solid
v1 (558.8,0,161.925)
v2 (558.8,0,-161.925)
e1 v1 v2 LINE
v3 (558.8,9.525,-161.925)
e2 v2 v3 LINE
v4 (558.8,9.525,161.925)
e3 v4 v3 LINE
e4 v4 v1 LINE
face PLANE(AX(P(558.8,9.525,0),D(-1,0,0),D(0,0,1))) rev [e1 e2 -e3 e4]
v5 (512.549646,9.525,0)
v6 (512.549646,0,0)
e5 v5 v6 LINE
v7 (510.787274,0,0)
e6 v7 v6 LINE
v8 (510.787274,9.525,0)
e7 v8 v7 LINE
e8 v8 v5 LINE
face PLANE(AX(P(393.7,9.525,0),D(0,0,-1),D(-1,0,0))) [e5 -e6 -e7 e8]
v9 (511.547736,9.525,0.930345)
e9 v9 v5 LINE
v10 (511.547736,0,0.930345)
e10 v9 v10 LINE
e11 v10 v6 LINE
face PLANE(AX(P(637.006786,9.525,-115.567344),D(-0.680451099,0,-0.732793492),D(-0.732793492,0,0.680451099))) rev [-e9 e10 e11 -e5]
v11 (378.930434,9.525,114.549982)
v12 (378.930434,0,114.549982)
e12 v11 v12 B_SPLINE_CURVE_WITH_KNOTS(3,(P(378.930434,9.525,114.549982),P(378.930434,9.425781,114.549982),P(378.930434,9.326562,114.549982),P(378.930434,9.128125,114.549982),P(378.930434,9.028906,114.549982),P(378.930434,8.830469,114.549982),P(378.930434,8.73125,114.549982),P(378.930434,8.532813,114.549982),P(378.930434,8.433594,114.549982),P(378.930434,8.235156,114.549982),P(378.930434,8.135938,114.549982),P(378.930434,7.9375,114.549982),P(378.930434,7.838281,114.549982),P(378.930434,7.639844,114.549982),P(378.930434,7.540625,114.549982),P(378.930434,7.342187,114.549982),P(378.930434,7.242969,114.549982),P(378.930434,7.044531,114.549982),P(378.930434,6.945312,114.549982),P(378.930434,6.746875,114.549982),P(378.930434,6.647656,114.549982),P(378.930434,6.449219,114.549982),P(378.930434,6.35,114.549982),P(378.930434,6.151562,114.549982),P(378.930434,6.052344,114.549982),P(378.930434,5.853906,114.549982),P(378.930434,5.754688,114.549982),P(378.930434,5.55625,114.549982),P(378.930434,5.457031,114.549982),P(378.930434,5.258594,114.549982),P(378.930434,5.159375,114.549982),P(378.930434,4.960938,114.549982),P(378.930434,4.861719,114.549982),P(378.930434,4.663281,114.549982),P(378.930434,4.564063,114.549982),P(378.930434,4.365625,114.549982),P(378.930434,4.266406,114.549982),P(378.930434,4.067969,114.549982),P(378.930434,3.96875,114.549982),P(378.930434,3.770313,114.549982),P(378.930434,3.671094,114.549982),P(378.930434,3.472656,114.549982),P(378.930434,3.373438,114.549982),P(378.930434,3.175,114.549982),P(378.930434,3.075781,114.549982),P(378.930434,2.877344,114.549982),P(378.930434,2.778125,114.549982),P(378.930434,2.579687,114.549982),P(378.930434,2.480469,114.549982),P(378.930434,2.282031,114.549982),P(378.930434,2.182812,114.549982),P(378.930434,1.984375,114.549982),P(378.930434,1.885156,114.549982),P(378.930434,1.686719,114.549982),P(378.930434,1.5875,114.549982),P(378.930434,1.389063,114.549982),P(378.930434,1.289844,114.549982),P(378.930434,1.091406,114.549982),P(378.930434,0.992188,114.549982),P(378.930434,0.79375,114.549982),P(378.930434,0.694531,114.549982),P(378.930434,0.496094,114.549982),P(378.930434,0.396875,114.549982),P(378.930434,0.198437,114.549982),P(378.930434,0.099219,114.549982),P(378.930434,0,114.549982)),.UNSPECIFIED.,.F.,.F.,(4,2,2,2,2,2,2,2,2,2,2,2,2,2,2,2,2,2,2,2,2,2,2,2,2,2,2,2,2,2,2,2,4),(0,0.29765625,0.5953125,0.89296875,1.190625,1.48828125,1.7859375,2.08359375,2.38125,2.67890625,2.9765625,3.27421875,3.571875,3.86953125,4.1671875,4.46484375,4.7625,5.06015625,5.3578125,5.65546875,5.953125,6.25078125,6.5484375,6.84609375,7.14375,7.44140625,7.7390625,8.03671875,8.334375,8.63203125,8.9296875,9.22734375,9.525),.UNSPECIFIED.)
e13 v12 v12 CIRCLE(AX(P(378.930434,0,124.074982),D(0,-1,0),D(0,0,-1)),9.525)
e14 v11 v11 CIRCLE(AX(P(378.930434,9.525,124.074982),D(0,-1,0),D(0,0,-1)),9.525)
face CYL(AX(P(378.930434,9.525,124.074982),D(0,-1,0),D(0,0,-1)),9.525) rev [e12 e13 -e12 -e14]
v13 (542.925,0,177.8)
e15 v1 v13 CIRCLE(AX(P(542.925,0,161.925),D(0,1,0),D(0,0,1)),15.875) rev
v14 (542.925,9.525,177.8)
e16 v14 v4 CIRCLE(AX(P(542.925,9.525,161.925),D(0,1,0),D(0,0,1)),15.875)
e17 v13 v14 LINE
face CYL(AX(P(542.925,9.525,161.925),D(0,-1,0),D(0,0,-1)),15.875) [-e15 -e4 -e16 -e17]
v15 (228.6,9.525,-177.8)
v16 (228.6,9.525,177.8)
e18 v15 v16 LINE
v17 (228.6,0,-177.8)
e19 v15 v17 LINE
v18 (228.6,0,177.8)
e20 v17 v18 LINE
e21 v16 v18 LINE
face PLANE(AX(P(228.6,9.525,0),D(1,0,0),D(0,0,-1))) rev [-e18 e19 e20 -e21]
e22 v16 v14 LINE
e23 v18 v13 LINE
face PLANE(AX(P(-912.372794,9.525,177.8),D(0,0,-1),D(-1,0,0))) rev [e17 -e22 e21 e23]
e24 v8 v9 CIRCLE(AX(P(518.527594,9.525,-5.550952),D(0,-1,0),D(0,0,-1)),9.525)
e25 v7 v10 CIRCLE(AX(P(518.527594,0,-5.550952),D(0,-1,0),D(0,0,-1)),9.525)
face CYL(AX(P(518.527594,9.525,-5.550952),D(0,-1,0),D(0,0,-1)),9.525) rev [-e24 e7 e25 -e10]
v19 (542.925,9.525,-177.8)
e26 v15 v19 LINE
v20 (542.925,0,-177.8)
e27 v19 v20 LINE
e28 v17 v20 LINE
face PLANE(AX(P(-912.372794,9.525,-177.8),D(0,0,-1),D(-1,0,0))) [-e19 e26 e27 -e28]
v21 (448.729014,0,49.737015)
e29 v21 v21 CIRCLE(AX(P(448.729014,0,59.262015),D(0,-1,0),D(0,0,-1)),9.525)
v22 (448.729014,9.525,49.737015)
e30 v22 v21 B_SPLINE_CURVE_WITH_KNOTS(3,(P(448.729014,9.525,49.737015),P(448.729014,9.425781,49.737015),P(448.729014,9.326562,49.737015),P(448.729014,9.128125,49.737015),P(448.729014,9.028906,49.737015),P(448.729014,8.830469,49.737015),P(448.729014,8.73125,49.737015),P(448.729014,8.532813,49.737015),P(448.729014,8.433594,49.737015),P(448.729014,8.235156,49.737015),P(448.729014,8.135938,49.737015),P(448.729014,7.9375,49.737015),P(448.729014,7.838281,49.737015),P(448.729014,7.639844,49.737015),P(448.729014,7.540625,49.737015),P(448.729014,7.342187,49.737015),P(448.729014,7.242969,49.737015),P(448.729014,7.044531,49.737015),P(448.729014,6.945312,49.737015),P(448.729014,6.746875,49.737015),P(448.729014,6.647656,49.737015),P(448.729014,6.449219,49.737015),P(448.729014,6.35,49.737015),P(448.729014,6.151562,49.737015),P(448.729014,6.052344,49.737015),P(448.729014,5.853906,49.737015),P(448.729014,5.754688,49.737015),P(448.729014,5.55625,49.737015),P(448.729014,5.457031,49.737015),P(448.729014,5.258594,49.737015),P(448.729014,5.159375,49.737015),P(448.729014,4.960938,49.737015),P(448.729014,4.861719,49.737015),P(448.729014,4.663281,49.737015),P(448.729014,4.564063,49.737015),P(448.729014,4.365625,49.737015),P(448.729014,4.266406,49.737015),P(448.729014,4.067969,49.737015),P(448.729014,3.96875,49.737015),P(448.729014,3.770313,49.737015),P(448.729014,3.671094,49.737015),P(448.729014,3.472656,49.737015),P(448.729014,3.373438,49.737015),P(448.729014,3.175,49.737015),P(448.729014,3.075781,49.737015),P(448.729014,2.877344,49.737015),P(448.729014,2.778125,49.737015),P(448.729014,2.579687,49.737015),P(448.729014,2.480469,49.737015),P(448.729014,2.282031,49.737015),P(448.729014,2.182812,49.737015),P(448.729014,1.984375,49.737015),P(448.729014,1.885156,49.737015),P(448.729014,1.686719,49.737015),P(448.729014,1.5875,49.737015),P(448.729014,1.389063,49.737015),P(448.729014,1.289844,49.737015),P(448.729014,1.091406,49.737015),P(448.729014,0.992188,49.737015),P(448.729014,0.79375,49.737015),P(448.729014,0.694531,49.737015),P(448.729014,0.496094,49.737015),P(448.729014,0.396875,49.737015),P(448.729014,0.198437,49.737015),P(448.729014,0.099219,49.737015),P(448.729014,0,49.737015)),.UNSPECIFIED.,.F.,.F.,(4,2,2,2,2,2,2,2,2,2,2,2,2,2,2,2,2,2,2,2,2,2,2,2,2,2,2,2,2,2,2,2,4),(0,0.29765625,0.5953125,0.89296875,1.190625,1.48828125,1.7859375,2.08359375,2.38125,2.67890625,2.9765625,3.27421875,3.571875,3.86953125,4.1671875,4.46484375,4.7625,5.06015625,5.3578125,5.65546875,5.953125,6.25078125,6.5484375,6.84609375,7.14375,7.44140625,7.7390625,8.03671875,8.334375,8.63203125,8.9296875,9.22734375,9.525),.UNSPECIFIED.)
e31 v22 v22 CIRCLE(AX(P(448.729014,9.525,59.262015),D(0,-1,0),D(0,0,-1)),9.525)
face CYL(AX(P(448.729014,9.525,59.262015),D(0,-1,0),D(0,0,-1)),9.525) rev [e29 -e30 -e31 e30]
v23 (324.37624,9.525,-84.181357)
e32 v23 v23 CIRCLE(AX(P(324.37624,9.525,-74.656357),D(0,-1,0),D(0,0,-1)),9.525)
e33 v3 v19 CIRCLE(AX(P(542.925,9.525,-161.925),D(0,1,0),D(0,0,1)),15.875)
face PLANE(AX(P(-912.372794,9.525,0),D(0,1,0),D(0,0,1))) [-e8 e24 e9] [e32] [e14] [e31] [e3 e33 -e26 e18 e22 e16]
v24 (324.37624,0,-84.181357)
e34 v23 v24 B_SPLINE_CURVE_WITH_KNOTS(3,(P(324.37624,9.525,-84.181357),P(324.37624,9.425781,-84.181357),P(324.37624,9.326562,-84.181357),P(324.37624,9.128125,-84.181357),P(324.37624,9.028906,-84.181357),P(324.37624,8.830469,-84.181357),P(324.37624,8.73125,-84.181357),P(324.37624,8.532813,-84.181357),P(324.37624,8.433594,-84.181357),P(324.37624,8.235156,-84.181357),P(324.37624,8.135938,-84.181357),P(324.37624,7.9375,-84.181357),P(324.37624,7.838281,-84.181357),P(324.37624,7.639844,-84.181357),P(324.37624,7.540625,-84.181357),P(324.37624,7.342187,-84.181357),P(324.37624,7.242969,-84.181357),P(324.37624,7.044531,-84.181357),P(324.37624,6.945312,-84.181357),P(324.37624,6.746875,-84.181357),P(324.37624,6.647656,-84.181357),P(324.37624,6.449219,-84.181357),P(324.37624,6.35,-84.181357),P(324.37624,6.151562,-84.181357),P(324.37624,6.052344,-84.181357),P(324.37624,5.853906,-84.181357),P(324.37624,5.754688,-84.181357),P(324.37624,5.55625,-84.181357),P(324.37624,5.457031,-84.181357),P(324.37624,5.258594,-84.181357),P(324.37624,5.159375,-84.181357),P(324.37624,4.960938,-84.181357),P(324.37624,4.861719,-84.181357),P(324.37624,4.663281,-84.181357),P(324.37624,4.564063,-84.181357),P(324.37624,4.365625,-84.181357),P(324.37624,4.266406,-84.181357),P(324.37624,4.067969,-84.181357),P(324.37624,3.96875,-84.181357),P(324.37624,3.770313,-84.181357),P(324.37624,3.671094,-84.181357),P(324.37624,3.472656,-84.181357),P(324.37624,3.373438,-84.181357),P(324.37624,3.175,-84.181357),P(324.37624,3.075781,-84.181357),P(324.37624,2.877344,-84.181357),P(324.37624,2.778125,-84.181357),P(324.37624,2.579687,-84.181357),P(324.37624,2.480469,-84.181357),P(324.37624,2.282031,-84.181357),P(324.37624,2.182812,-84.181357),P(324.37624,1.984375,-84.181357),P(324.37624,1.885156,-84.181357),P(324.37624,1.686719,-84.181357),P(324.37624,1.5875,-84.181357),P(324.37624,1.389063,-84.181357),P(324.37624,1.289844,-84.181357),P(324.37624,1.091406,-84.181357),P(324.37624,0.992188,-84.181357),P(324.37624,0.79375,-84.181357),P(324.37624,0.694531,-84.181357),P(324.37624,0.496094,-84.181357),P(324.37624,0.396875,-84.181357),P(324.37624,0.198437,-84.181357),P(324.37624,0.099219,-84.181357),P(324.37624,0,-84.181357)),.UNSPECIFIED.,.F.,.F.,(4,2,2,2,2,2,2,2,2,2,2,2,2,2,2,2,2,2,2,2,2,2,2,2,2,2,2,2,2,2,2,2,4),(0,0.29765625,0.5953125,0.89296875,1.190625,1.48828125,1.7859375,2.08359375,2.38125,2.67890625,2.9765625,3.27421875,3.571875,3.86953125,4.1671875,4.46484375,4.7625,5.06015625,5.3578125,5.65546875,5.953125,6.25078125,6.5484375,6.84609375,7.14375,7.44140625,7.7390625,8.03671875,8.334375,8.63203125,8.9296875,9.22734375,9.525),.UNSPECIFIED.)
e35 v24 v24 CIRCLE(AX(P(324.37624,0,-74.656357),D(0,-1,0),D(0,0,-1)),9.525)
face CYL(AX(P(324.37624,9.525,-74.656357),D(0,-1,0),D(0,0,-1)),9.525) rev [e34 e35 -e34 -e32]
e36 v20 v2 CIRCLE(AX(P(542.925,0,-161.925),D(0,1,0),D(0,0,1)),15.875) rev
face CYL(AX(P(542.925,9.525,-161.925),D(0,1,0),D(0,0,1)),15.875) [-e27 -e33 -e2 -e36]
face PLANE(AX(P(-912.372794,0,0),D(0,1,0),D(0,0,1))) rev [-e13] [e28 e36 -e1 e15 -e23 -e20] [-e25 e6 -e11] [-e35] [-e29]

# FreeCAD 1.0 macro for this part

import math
import FreeCAD as App
import Part
import Sketcher
Q = App.Units.Quantity


def edges_at(feature, points):
    """Names of the edges that pass closest to the given points."""
    edges = feature.Shape.Edges
    near = lambda p: min(range(len(edges)), key=lambda i: edges[i].distToShape(Part.Vertex(*p))[0])
    return sorted({f"Edge{near(p) + 1}" for p in points})

doc = App.newDocument("Part")
body = doc.addObject("PartDesign::Body", "Body")

sketch1 = doc.addObject("Sketcher::SketchObject", "Sketch")
body.addObject(sketch1)
sketch1.AttachmentSupport = (doc.XZ_Plane, [""])
sketch1.MapMode = "FlatFace"
sketch1.addGeometry([
    Part.LineSegment(App.Vector(462, -18, 0), App.Vector(559, -99, 0)),
    Part.LineSegment(App.Vector(559, -99, 0), App.Vector(559, -178, 0)),
    Part.LineSegment(App.Vector(559, -178, 0), App.Vector(229, -178, 0)),
    Part.LineSegment(App.Vector(229, -178, 0), App.Vector(229, 178, 0)),
    Part.LineSegment(App.Vector(229, 178, 0), App.Vector(462, -18, 0)),
], False)
sketch1.addConstraint([
    Sketcher.Constraint("Coincident", 0, 2, 1, 1),
    Sketcher.Constraint("Coincident", 1, 2, 2, 1),
    Sketcher.Constraint("Coincident", 2, 2, 3, 1),
    Sketcher.Constraint("Coincident", 3, 2, 4, 1),
    Sketcher.Constraint("Coincident", 4, 2, 0, 1),
    Sketcher.Constraint("Vertical", 1),
    Sketcher.Constraint("Horizontal", 2),
    Sketcher.Constraint("Vertical", 3),
    Sketcher.Constraint("Parallel", 0, 4),
    Sketcher.Constraint("DistanceX", 2, 2, 2, 1, Q("13 in")),
    Sketcher.Constraint("DistanceY", 3, 1, 3, 2, Q("14 in")),
    Sketcher.Constraint("Distance", 0, Q("5 in")),
    Sketcher.Constraint("DistanceX", -1, 1, 0, 2, Q("22 in")),
    Sketcher.Constraint("DistanceY", 1, 2, -1, 1, Q("7 in")),
    Sketcher.Constraint("Angle", 0, Q("-40 deg")),
])
pad1 = doc.addObject("PartDesign::Pad", "Pad")
body.addObject(pad1)
pad1.Profile = sketch1
pad1.Length = Q("0.375 in")
pad1.Reversed = True

sketch2 = doc.addObject("Sketcher::SketchObject", "Sketch001")
body.addObject(sketch2)
sketch2.AttachmentSupport = (doc.XZ_Plane, [""])
sketch2.MapMode = "FlatFace"
sketch2.addGeometry([
    Part.LineSegment(App.Vector(559, 178, 0), App.Vector(559, -99, 0)),
    Part.LineSegment(App.Vector(559, -99, 0), App.Vector(462, -18, 0)),
    Part.LineSegment(App.Vector(462, -18, 0), App.Vector(229, 178, 0)),
    Part.LineSegment(App.Vector(229, 178, 0), App.Vector(559, 178, 0)),
], False)
sketch2.addConstraint([
    Sketcher.Constraint("Coincident", 0, 2, 1, 1),
    Sketcher.Constraint("Coincident", 1, 2, 2, 1),
    Sketcher.Constraint("Coincident", 2, 2, 3, 1),
    Sketcher.Constraint("Coincident", 3, 2, 0, 1),
    Sketcher.Constraint("Vertical", 0),
    Sketcher.Constraint("Horizontal", 3),
    Sketcher.Constraint("Parallel", 1, 2),
    Sketcher.Constraint("DistanceX", 3, 1, 3, 2, Q("13 in")),
    Sketcher.Constraint("Distance", 1, Q("5 in")),
    Sketcher.Constraint("DistanceX", -1, 1, 0, 2, Q("22 in")),
    Sketcher.Constraint("DistanceY", -1, 1, 2, 2, Q("7 in")),
    Sketcher.Constraint("Angle", 1, Q("140 deg")),
])
pad2 = doc.addObject("PartDesign::Pad", "Pad001")
body.addObject(pad2)
pad2.Profile = sketch2
pad2.Length = Q("0.375 in")
pad2.Reversed = True
doc.recompute()

fillet = doc.addObject("PartDesign::Fillet", "Fillet")
body.addObject(fillet)
fillet.Base = (pad2, edges_at(pad2, [(558.8, 4.763, 177.8), (558.8, 4.763, -177.8)]))
fillet.Radius = Q("0.625 in")

sketch3 = doc.addObject("Sketcher::SketchObject", "Sketch002")
body.addObject(sketch3)
sketch3.AttachmentSupport = (doc.XZ_Plane, [""])
sketch3.MapMode = "FlatFace"
sketch3.addGeometry([
    Part.Circle(App.Vector(378.9, 124.1, 0), App.Vector(0, 0, 1), 9.5),
    Part.Circle(App.Vector(448.7, 59.3, 0), App.Vector(0, 0, 1), 9.5),
    Part.ArcOfCircle(Part.Circle(App.Vector(518.5, -5.6, 0), App.Vector(0, 0, 1), 9.5), math.radians(144), math.radians(497)),
    Part.LineSegment(App.Vector(511.5, 0.9, 0), App.Vector(512.5, 0, 0)),
    Part.LineSegment(App.Vector(512.5, 0, 0), App.Vector(510.8, 0, 0)),
    Part.Circle(App.Vector(324.4, -74.7, 0), App.Vector(0, 0, 1), 9.5),
], False)
sketch3.addConstraint([
    Sketcher.Constraint("Coincident", 2, 2, 3, 1),
    Sketcher.Constraint("Coincident", 3, 2, 4, 1),
    Sketcher.Constraint("Coincident", 4, 2, 2, 1),
    Sketcher.Constraint("Horizontal", 4),
    Sketcher.Constraint("Equal", 0, 1),
    Sketcher.Constraint("Equal", 1, 2),
    Sketcher.Constraint("Equal", 2, 5),
    Sketcher.Constraint("PointOnObject", 3, 2, -1),
    Sketcher.Constraint("Diameter", 0, Q("0.75 in")),
    Sketcher.Constraint("DistanceX", 4, 2, 4, 1, 1.762372),
    Sketcher.Constraint("DistanceY", 5, 3, 2, 2, 75.586701),
    Sketcher.Constraint("DistanceX", -1, 1, 5, 3, 324.37624),
    Sketcher.Constraint("DistanceX", 0, 3, 1, 3, 69.79858),
    Sketcher.Constraint("DistanceX", 1, 3, 2, 3, 69.79858),
    Sketcher.Constraint("DistanceY", 5, 3, 1, 3, 133.918372),
    Sketcher.Constraint("DistanceY", 5, 3, 0, 3, 198.731339),
    Sketcher.Constraint("DistanceX", 2, 2, 2, 3, 6.979858),
    Sketcher.Constraint("DistanceX", 2, 2, 3, 2, 1.00191),
    Sketcher.Constraint("DistanceX", -1, 1, 0, 3, 378.930434),
])
pocket1 = doc.addObject("PartDesign::Pocket", "Pocket")
body.addObject(pocket1)
pocket1.Profile = sketch3
pocket1.Type = "ThroughAll"

doc.recompute()
